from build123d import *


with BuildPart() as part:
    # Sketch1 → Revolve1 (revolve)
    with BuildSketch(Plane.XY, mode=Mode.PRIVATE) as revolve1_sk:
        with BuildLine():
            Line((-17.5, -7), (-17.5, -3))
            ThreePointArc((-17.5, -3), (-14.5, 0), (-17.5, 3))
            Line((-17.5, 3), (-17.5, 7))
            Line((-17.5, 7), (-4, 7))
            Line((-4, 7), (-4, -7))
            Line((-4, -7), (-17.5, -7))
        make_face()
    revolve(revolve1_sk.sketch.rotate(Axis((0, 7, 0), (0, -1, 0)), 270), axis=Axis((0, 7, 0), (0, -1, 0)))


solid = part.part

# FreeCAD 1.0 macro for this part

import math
import FreeCAD as App
import Part
import Sketcher

V = App.Vector
Q = App.Units.Quantity

doc = App.newDocument("Part")
body = doc.addObject("PartDesign::Body", "Body")

sketch1 = body.newObject("Sketcher::SketchObject", "Sketch")
sketch1.AttachmentSupport = (doc.getObject("XY_Plane"), [""])
sketch1.MapMode = "FlatFace"
sketch1.addGeometry(Part.LineSegment(V(-17.5, -3, 0), V(-17.5, -7, 0)), False)
sketch1.addGeometry(Part.LineSegment(V(-17.5, -7, 0), V(-4, -7, 0)), False)
sketch1.addGeometry(Part.LineSegment(V(-4, -7, 0), V(-4, 7, 0)), False)
sketch1.addGeometry(Part.LineSegment(V(-4, 7, 0), V(-17.5, 7, 0)), False)
sketch1.addGeometry(Part.LineSegment(V(-17.5, 7, 0), V(-17.5, 3, 0)), False)
sketch1.addGeometry(Part.ArcOfCircle(Part.Circle(V(-17.5, 0, 0), V(0, 0, 1), 3), math.radians(-90), math.radians(90)), False)
sketch1.addConstraint(Sketcher.Constraint("Coincident", 0, 2, 1, 1))
sketch1.addConstraint(Sketcher.Constraint("Coincident", 1, 2, 2, 1))
sketch1.addConstraint(Sketcher.Constraint("Coincident", 2, 2, 3, 1))
sketch1.addConstraint(Sketcher.Constraint("Coincident", 3, 2, 4, 1))
sketch1.addConstraint(Sketcher.Constraint("Coincident", 4, 2, 5, 2))
sketch1.addConstraint(Sketcher.Constraint("Coincident", 5, 1, 0, 1))
sketch1.addConstraint(Sketcher.Constraint("Vertical", 0))
sketch1.addConstraint(Sketcher.Constraint("Horizontal", 1))
sketch1.addConstraint(Sketcher.Constraint("Vertical", 2))
sketch1.addConstraint(Sketcher.Constraint("Horizontal", 3))
sketch1.addConstraint(Sketcher.Constraint("Vertical", 4))
sketch1.addConstraint(Sketcher.Constraint("Symmetric", 0, 2, 3, 2, -1))
sketch1.addConstraint(Sketcher.Constraint("PointOnObject", 5, 3, -1))
sketch1.addConstraint(Sketcher.Constraint("Vertical", 5, 3, 0, 2))
sketch1.addConstraint(Sketcher.Constraint("Radius", 5, Q("3 mm")))
sketch1.addConstraint(Sketcher.Constraint("DistanceY", 0, 2, 0, 1, Q("4 mm")))
sketch1.addConstraint(Sketcher.Constraint("DistanceX", 1, 1, 1, 2, Q("13.5 mm")))
sketch1.addConstraint(Sketcher.Constraint("DistanceX", 1, 2, -1, 1, Q("4 mm")))
revolution = body.newObject("PartDesign::Revolution", "Revolution")
revolution.Profile = sketch1
revolution.ReferenceAxis = (sketch1, ["V_Axis"])
revolution.Angle = 360

doc.recompute()
